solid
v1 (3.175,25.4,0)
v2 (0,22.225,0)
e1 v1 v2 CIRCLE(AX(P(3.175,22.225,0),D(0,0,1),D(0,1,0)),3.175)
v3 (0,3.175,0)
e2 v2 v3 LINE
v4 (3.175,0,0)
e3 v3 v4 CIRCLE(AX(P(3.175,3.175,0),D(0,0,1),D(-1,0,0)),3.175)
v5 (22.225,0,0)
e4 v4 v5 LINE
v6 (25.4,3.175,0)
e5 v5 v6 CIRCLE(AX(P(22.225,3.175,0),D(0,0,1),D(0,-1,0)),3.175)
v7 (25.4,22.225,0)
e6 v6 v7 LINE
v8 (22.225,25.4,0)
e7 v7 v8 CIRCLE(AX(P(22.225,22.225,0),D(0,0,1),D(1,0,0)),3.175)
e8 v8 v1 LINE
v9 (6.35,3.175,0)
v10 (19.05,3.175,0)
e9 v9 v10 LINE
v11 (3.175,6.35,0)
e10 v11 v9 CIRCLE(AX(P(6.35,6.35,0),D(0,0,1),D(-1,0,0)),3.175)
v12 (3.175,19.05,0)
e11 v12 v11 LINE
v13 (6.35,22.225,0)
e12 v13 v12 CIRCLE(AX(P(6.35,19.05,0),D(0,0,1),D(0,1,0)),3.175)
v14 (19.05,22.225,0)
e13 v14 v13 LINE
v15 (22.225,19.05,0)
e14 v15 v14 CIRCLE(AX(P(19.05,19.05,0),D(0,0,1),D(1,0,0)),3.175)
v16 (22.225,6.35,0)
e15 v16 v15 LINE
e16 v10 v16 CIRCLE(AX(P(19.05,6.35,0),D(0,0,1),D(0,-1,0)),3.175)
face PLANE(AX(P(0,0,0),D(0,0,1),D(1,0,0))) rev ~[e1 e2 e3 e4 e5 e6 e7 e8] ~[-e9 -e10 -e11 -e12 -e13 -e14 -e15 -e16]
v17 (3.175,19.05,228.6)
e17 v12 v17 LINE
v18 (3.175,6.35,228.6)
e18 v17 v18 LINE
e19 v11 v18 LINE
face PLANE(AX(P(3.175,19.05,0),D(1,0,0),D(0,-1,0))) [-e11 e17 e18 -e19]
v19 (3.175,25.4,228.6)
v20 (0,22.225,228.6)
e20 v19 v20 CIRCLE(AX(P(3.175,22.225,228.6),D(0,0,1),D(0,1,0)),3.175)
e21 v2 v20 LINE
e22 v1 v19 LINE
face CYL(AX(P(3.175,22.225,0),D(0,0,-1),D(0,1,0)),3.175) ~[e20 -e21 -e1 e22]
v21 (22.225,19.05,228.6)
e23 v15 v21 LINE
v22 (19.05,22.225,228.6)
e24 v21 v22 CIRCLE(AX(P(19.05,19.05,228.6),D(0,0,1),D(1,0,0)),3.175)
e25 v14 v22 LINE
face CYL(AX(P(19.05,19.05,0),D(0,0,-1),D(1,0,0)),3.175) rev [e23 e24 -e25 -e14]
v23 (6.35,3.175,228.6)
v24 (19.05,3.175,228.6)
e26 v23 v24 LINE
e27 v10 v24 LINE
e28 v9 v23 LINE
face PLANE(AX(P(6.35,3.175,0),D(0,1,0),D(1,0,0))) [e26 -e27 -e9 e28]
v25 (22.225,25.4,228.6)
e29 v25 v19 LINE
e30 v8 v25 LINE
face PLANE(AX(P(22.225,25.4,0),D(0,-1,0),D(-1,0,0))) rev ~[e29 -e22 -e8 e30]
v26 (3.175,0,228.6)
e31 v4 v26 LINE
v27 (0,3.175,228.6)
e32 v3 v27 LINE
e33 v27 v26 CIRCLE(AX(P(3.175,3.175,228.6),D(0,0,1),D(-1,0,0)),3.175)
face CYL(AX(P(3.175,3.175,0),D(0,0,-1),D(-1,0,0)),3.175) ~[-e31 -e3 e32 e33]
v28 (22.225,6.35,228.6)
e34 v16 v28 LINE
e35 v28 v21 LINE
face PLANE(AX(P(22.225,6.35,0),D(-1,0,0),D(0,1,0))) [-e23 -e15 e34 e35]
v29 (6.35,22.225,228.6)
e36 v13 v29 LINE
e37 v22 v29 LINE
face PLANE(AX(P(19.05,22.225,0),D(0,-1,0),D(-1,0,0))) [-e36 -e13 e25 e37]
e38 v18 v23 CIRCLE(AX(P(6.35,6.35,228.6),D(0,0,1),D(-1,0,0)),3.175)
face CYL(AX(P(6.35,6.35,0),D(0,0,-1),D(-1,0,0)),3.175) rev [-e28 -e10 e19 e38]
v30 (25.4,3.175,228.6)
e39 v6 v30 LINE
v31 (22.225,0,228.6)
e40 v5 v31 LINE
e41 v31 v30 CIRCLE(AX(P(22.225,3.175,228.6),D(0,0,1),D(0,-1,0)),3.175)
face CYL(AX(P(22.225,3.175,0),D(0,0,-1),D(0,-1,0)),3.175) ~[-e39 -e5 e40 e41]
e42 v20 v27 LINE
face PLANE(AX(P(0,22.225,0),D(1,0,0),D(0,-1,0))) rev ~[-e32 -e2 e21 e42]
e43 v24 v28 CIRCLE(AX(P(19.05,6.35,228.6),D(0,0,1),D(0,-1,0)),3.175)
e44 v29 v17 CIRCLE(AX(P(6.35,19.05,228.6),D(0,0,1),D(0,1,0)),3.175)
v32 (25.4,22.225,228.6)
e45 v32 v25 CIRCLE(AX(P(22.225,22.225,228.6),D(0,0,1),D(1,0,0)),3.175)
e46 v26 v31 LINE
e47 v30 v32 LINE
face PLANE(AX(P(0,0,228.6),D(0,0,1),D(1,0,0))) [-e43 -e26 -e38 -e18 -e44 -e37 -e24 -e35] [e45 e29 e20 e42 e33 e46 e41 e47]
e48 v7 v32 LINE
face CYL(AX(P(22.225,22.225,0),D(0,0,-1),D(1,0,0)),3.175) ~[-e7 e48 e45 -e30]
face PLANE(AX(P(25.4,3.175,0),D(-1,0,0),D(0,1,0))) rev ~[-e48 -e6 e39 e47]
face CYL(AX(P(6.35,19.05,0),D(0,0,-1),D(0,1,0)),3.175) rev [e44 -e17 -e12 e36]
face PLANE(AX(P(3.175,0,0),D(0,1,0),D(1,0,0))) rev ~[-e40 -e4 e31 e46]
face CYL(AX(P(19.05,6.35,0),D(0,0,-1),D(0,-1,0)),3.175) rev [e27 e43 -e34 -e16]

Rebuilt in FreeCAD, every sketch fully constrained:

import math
import FreeCAD as App
import Part
import Sketcher
from FreeCAD import Vector
Q = App.Units.Quantity

doc = App.newDocument("Part")
body = doc.addObject("PartDesign::Body", "Body")

# Sketch on XY plane
sketch1 = body.newObject("Sketcher::SketchObject", "Sketch")
sketch1.AttachmentSupport = (doc.getObject("XY_Plane"), [""])
sketch1.MapMode = "FlatFace"
sketch1.addGeometry([
    Part.ArcOfCircle(Part.Circle(Vector(3.2, 3.2, 0), Vector(0, 0, 1), 3.2), math.radians(180), math.radians(270)),  # 0
    Part.LineSegment(Vector(3.2, 0, 0), Vector(22.2, 0, 0)),  # 1
    Part.ArcOfCircle(Part.Circle(Vector(22.2, 3.2, 0), Vector(0, 0, 1), 3.2), math.radians(-90), math.radians(0)),  # 2
    Part.LineSegment(Vector(25.4, 3.2, 0), Vector(25.4, 22.2, 0)),  # 3
    Part.ArcOfCircle(Part.Circle(Vector(22.2, 22.2, 0), Vector(0, 0, 1), 3.2), math.radians(0), math.radians(90)),  # 4
    Part.LineSegment(Vector(22.2, 25.4, 0), Vector(3.2, 25.4, 0)),  # 5
    Part.ArcOfCircle(Part.Circle(Vector(3.2, 22.2, 0), Vector(0, 0, 1), 3.2), math.radians(90), math.radians(180)),  # 6
    Part.LineSegment(Vector(0, 22.2, 0), Vector(0, 3.2, 0)),  # 7
    Part.LineSegment(Vector(19.1, 3.2, 0), Vector(6.3, 3.2, 0)),  # 8
    Part.ArcOfCircle(Part.Circle(Vector(6.3, 6.3, 0), Vector(0, 0, 1), 3.2), math.radians(180), math.radians(270)),  # 9
    Part.LineSegment(Vector(3.2, 6.3, 0), Vector(3.2, 19.1, 0)),  # 10
    Part.ArcOfCircle(Part.Circle(Vector(6.3, 19.1, 0), Vector(0, 0, 1), 3.2), math.radians(90), math.radians(180)),  # 11
    Part.LineSegment(Vector(6.3, 22.2, 0), Vector(19.1, 22.2, 0)),  # 12
    Part.ArcOfCircle(Part.Circle(Vector(19.1, 19.1, 0), Vector(0, 0, 1), 3.2), math.radians(0), math.radians(90)),  # 13
    Part.LineSegment(Vector(22.2, 19.1, 0), Vector(22.2, 6.3, 0)),  # 14
    Part.ArcOfCircle(Part.Circle(Vector(19.1, 6.3, 0), Vector(0, 0, 1), 3.2), math.radians(-90), math.radians(0)),  # 15
], False)
sketch1.addConstraint([
    Sketcher.Constraint("Tangent", 0, 2, 1, 1),
    Sketcher.Constraint("Tangent", 1, 2, 2, 1),
    Sketcher.Constraint("Tangent", 2, 2, 3, 1),
    Sketcher.Constraint("Tangent", 3, 2, 4, 1),
    Sketcher.Constraint("Tangent", 4, 2, 5, 1),
    Sketcher.Constraint("Tangent", 5, 2, 6, 1),
    Sketcher.Constraint("Tangent", 6, 2, 7, 1),
    Sketcher.Constraint("Tangent", 7, 2, 0, 1),
    Sketcher.Constraint("Tangent", 8, 2, 9, 2),
    Sketcher.Constraint("Tangent", 9, 1, 10, 1),
    Sketcher.Constraint("Tangent", 10, 2, 11, 2),
    Sketcher.Constraint("Tangent", 11, 1, 12, 1),
    Sketcher.Constraint("Tangent", 12, 2, 13, 2),
    Sketcher.Constraint("Tangent", 13, 1, 14, 1),
    Sketcher.Constraint("Tangent", 14, 2, 15, 2),
    Sketcher.Constraint("Tangent", 15, 1, 8, 1),
    Sketcher.Constraint("Horizontal", 1),
    Sketcher.Constraint("Vertical", 3),
    Sketcher.Constraint("Horizontal", 5),
    Sketcher.Constraint("Vertical", 7),
    Sketcher.Constraint("Horizontal", 8),
    Sketcher.Constraint("Vertical", 10),
    Sketcher.Constraint("Horizontal", 12),
    Sketcher.Constraint("Vertical", 14),
    Sketcher.Constraint("Equal", 0, 2),
    Sketcher.Constraint("Equal", 2, 4),
    Sketcher.Constraint("Equal", 4, 6),
    Sketcher.Constraint("Equal", 6, 9),
    Sketcher.Constraint("Equal", 9, 11),
    Sketcher.Constraint("Equal", 11, 13),
    Sketcher.Constraint("Equal", 13, 15),
    Sketcher.Constraint("PointOnObject", 0, 2, -1),
    Sketcher.Constraint("PointOnObject", 6, 2, -2),
    Sketcher.Constraint("Horizontal", 7, 2, 8, 2),
    Sketcher.Constraint("Horizontal", 6, 2, 11, 1),
    Sketcher.Constraint("Vertical", 5, 2, 9, 1),
    Sketcher.Constraint("Vertical", 4, 2, 13, 1),
    Sketcher.Constraint("Equal", 5, 3),
    Sketcher.Constraint("DistanceX", -1, 1, 2, 2, Q("1 in")),
    Sketcher.Constraint("Radius", 0, Q("0.125 in")),
])
pad1 = body.newObject("PartDesign::Pad", "Pad")
pad1.Profile = sketch1
pad1.Length = Q("9 in")

doc.recompute()
